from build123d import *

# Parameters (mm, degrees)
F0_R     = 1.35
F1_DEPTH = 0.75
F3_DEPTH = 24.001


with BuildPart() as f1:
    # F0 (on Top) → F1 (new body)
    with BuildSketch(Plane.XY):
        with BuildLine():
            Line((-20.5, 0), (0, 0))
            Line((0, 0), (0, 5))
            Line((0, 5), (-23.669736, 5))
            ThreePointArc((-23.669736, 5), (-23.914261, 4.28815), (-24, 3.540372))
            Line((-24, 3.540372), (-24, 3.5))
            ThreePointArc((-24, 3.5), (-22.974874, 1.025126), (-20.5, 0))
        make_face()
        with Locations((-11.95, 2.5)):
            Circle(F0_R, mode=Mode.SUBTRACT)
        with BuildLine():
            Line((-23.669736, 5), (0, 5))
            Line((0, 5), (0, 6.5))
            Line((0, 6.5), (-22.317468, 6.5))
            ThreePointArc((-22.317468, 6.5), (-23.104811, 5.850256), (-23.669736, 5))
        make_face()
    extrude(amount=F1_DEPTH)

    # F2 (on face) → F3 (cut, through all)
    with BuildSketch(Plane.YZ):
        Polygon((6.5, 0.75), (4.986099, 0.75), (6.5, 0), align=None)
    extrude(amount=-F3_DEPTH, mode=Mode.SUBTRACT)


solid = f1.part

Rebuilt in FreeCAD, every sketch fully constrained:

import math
import FreeCAD as App
import Part
import Sketcher

V = App.Vector


def add_polygon(sketch, points):
    """Adds a closed chain of lines whose ends are joined by coincident constraints."""
    first, n = sketch.GeometryCount, len(points)
    for a, b in zip(points, points[1:] + points[:1]):
        sketch.addGeometry(Part.LineSegment(App.Vector(*a, 0), App.Vector(*b, 0)), False)
    for i in range(n):
        sketch.addConstraint(Sketcher.Constraint("Coincident", first + i, 2, first + (i + 1) % n, 1))

doc = App.newDocument("Part")
body = doc.addObject("PartDesign::Body", "Body")

# Sketch on XY plane
sketch1 = body.newObject("Sketcher::SketchObject", "Sketch")
sketch1.AttachmentSupport = (doc.getObject("XY_Plane"), [""])
sketch1.MapMode = "FlatFace"
sketch1.addGeometry([
    Part.LineSegment(V(-20.5, 0, 0), V(0, 0, 0)),  # 0
    Part.LineSegment(V(0, 0, 0), V(0, 6.5, 0)),  # 1
    Part.LineSegment(V(0, 6.5, 0), V(-22.317468, 6.5, 0)),  # 2
    Part.ArcOfCircle(Part.Circle(V(-20.520182, 3.520182, 0), V(0, 0, 1), 3.479878), math.radians(121.096406), math.radians(154.833515)),  # 3
    Part.ArcOfCircle(Part.Circle(V(-20.520186, 3.520187, 0), V(0, 0, 1), 3.479873), math.radians(154.833555), math.radians(179.667647)),  # 4
    Part.LineSegment(V(-24, 3.540372, 0), V(-24, 3.5, 0)),  # 5
    Part.ArcOfCircle(Part.Circle(V(-20.500001, 3.499999, 0), V(0, 0, 1), 3.499999), math.radians(179.999985), math.radians(270.000015)),  # 6
    Part.Circle(V(-11.95, 2.5, 0), V(0, 0, 1), 1.35),  # 7
], False)
sketch1.addConstraint([
    Sketcher.Constraint("Coincident", 0, 2, 1, 1),
    Sketcher.Constraint("Coincident", 1, 2, 2, 1),
    Sketcher.Constraint("Coincident", 2, 2, 3, 1),
    Sketcher.Constraint("Tangent", 3, 2, 4, 1),
    Sketcher.Constraint("Coincident", 4, 2, 5, 1),
    Sketcher.Constraint("Tangent", 5, 2, 6, 1),
    Sketcher.Constraint("Tangent", 6, 2, 0, 1),
    Sketcher.Constraint("Horizontal", 0),
    Sketcher.Constraint("Vertical", 1),
    Sketcher.Constraint("Horizontal", 2),
    Sketcher.Constraint("Vertical", 5),
    Sketcher.Constraint("Coincident", 0, 2, -1, 1),
    Sketcher.Constraint("Diameter", 7, 2.7),
    Sketcher.Constraint("Radius", 6, 3.499999),
    Sketcher.Constraint("DistanceX", 0, 1, 0, 2, 20.5),
    Sketcher.Constraint("DistanceY", 1, 1, 1, 2, 6.5),
    Sketcher.Constraint("DistanceY", -1, 1, 3, 2, 5.0),
    Sketcher.Constraint("DistanceY", 7, 3, 6, 3, 0.999999),
    Sketcher.Constraint("DistanceX", 7, 3, -1, 1, 11.95),
    Sketcher.Constraint("Radius", 3, 3.479878),
    Sketcher.Constraint("Radius", 4, 3.479873),
    Sketcher.Constraint("DistanceX", 2, 2, 2, 1, 22.317468),
    Sketcher.Constraint("DistanceY", 5, 2, 5, 1, 0.040372),
])
pad1 = body.newObject("PartDesign::Pad", "Pad")
pad1.Profile = sketch1
pad1.Length = 0.75

# Sketch on YZ plane
sketch2 = body.newObject("Sketcher::SketchObject", "Sketch001")
sketch2.AttachmentSupport = (doc.getObject("YZ_Plane"), [""])
sketch2.MapMode = "FlatFace"
add_polygon(sketch2, [(6.5, 0.75), (4.986099, 0.75), (6.5, 0)])  # lines 0-2
sketch2.addConstraint([
    Sketcher.Constraint("Horizontal", 0),
    Sketcher.Constraint("Vertical", 2),
    Sketcher.Constraint("PointOnObject", 1, 2, -1),
    Sketcher.Constraint("DistanceY", 2, 1, 2, 2, 0.75),
    Sketcher.Constraint("DistanceX", -1, 1, 1, 2, 6.5),
    Sketcher.Constraint("DistanceX", 0, 2, 0, 1, 1.513901),
])
pocket1 = body.newObject("PartDesign::Pocket", "Pocket")
pocket1.Profile = sketch2
pocket1.Type = "ThroughAll"

doc.recompute()
